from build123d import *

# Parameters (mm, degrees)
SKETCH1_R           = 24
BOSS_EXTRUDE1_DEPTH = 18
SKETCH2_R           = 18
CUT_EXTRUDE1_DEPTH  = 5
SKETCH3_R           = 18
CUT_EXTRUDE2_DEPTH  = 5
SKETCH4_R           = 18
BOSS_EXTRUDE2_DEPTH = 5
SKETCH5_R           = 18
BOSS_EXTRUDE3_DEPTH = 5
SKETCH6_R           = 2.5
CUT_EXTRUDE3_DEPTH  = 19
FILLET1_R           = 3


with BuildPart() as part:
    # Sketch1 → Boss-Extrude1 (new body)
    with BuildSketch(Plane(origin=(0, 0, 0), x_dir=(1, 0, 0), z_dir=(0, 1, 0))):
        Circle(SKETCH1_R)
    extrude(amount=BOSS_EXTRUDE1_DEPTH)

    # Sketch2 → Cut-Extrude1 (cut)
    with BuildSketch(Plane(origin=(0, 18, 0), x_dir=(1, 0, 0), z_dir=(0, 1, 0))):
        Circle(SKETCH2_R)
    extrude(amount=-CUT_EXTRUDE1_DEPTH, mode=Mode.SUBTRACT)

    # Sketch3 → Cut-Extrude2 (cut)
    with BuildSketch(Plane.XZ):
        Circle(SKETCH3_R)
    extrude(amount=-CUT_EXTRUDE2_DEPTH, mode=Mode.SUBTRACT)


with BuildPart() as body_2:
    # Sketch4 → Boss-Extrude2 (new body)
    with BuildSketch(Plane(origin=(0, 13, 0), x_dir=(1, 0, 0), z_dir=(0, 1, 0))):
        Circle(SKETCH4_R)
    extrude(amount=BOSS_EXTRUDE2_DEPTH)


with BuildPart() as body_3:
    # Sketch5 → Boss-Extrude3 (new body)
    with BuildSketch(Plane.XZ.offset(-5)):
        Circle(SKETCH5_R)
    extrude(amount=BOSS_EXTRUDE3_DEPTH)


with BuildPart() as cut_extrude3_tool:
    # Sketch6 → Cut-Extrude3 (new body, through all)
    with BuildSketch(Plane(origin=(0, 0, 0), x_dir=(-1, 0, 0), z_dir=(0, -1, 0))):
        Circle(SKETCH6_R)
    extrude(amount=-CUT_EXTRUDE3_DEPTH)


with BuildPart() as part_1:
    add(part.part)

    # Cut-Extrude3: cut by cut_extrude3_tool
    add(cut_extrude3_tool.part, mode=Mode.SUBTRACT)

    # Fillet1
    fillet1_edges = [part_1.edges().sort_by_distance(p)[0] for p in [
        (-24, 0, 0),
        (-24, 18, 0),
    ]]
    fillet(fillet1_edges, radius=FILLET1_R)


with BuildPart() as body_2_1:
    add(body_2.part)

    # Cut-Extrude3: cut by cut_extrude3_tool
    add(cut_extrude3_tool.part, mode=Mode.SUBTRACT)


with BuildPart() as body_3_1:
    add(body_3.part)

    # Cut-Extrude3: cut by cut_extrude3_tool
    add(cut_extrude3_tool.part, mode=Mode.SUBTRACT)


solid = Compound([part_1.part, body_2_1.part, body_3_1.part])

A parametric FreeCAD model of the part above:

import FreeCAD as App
import Part
import Sketcher
Q = App.Units.Quantity


def edges_at(feature, points):
    """Names of the edges that pass closest to the given points."""
    edges = feature.Shape.Edges
    near = lambda p: min(range(len(edges)), key=lambda i: edges[i].distToShape(Part.Vertex(*p))[0])
    return sorted({f"Edge{near(p) + 1}" for p in points})

doc = App.newDocument("Part")
body = doc.addObject("PartDesign::Body", "Body")

# Sketch on XZ plane
sketch1 = body.newObject("Sketcher::SketchObject", "Sketch")
sketch1.AttachmentSupport = (doc.getObject("XZ_Plane"), [""])
sketch1.MapMode = "FlatFace"
sketch1.addGeometry(Part.Circle(App.Vector(0, 0, 0), App.Vector(0, 0, 1), 24), False)
sketch1.addConstraint([
    Sketcher.Constraint("Coincident", 0, 3, -1, 1),
    Sketcher.Constraint("Diameter", 0, Q("48 mm")),
])
pad1 = body.newObject("PartDesign::Pad", "Pad")
pad1.Profile = sketch1
pad1.Length = 18
pad1.Reversed = True

# Sketch on XZ plane
sketch2 = body.newObject("Sketcher::SketchObject", "Sketch001")
sketch2.AttachmentSupport = (doc.getObject("XZ_Plane"), [""])
sketch2.MapMode = "FlatFace"
sketch2.AttachmentOffset = App.Placement(App.Vector(0, 0, -18), App.Rotation())
sketch2.addGeometry(Part.Circle(App.Vector(0, 0, 0), App.Vector(0, 0, 1), 18), False)
sketch2.addConstraint([
    Sketcher.Constraint("Coincident", 0, 3, -1, 1),
    Sketcher.Constraint("Diameter", 0, Q("36 mm")),
])
pocket1 = body.newObject("PartDesign::Pocket", "Pocket")
pocket1.Profile = sketch2
pocket1.Length = 5
pocket1.Reversed = True

# Sketch on XZ plane
sketch3 = body.newObject("Sketcher::SketchObject", "Sketch002")
sketch3.AttachmentSupport = (doc.getObject("XZ_Plane"), [""])
sketch3.MapMode = "FlatFace"
sketch3.addGeometry(Part.Circle(App.Vector(0, 0, 0), App.Vector(0, 0, 1), 18), False)
sketch3.addConstraint([
    Sketcher.Constraint("Coincident", 0, 3, -1, 1),
    Sketcher.Constraint("Diameter", 0, Q("36 mm")),
])
pocket2 = body.newObject("PartDesign::Pocket", "Pocket001")
pocket2.Profile = sketch3
pocket2.Length = 5
body2 = doc.addObject("PartDesign::Body", "Body001")

# Sketch on XZ plane
sketch4 = body2.newObject("Sketcher::SketchObject", "Sketch003")
sketch4.AttachmentSupport = (doc.getObject("XZ_Plane001"), [""])
sketch4.MapMode = "FlatFace"
sketch4.AttachmentOffset = App.Placement(App.Vector(0, 0, -13), App.Rotation())
sketch4.addGeometry(Part.Circle(App.Vector(0, 0, 0), App.Vector(0, 0, 1), 18), False)
sketch4.addConstraint([
    Sketcher.Constraint("Coincident", 0, 3, -1, 1),
    Sketcher.Constraint("Diameter", 0, Q("36 mm")),
])
pad2 = body2.newObject("PartDesign::Pad", "Pad001")
pad2.Profile = sketch4
pad2.Length = 5
pad2.Reversed = True
body3 = doc.addObject("PartDesign::Body", "Body002")

# Sketch on XZ plane
sketch5 = body3.newObject("Sketcher::SketchObject", "Sketch004")
sketch5.AttachmentSupport = (doc.getObject("XZ_Plane002"), [""])
sketch5.MapMode = "FlatFace"
sketch5.AttachmentOffset = App.Placement(App.Vector(0, 0, -5), App.Rotation())
sketch5.addGeometry(Part.Circle(App.Vector(0, 0, 0), App.Vector(0, 0, 1), 18), False)
sketch5.addConstraint([
    Sketcher.Constraint("Coincident", 0, 3, -1, 1),
    Sketcher.Constraint("Diameter", 0, Q("36 mm")),
])
pad3 = body3.newObject("PartDesign::Pad", "Pad002")
pad3.Profile = sketch5
pad3.Length = 5
body4 = doc.addObject("PartDesign::Body", "Body003")

# Sketch on XZ plane
sketch6 = body4.newObject("Sketcher::SketchObject", "Sketch005")
sketch6.AttachmentSupport = (doc.getObject("XZ_Plane003"), [""])
sketch6.MapMode = "FlatFace"
sketch6.addGeometry(Part.Circle(App.Vector(0, 0, 0), App.Vector(0, 0, 1), 2.5), False)
sketch6.addConstraint([
    Sketcher.Constraint("Coincident", 0, 3, -1, 1),
    Sketcher.Constraint("Diameter", 0, Q("5 mm")),
])
pad4 = body4.newObject("PartDesign::Pad", "Pad003")
pad4.Profile = sketch6
pad4.Length = 19
pad4.Reversed = True
doc.recompute()

body5 = doc.addObject("PartDesign::Body", "Body004")
body5.BaseFeature = body4
boolean = body.newObject("PartDesign::Boolean", "Boolean")
boolean.Type = "Cut"
boolean.addObjects([body5])
doc.recompute()

fillet = body.newObject("PartDesign::Fillet", "Fillet")
fillet.Base = (boolean, edges_at(boolean, [(-24, 0, 0), (-24, 18, 0)]))
fillet.Radius = 3
doc.recompute()

body6 = doc.addObject("PartDesign::Body", "Body005")
body6.BaseFeature = body4
boolean2 = body2.newObject("PartDesign::Boolean", "Boolean001")
boolean2.Type = "Cut"
boolean2.addObjects([body6])
doc.recompute()

boolean3 = body3.newObject("PartDesign::Boolean", "Boolean002")
boolean3.Type = "Cut"
boolean3.addObjects([body4])

doc.recompute()
